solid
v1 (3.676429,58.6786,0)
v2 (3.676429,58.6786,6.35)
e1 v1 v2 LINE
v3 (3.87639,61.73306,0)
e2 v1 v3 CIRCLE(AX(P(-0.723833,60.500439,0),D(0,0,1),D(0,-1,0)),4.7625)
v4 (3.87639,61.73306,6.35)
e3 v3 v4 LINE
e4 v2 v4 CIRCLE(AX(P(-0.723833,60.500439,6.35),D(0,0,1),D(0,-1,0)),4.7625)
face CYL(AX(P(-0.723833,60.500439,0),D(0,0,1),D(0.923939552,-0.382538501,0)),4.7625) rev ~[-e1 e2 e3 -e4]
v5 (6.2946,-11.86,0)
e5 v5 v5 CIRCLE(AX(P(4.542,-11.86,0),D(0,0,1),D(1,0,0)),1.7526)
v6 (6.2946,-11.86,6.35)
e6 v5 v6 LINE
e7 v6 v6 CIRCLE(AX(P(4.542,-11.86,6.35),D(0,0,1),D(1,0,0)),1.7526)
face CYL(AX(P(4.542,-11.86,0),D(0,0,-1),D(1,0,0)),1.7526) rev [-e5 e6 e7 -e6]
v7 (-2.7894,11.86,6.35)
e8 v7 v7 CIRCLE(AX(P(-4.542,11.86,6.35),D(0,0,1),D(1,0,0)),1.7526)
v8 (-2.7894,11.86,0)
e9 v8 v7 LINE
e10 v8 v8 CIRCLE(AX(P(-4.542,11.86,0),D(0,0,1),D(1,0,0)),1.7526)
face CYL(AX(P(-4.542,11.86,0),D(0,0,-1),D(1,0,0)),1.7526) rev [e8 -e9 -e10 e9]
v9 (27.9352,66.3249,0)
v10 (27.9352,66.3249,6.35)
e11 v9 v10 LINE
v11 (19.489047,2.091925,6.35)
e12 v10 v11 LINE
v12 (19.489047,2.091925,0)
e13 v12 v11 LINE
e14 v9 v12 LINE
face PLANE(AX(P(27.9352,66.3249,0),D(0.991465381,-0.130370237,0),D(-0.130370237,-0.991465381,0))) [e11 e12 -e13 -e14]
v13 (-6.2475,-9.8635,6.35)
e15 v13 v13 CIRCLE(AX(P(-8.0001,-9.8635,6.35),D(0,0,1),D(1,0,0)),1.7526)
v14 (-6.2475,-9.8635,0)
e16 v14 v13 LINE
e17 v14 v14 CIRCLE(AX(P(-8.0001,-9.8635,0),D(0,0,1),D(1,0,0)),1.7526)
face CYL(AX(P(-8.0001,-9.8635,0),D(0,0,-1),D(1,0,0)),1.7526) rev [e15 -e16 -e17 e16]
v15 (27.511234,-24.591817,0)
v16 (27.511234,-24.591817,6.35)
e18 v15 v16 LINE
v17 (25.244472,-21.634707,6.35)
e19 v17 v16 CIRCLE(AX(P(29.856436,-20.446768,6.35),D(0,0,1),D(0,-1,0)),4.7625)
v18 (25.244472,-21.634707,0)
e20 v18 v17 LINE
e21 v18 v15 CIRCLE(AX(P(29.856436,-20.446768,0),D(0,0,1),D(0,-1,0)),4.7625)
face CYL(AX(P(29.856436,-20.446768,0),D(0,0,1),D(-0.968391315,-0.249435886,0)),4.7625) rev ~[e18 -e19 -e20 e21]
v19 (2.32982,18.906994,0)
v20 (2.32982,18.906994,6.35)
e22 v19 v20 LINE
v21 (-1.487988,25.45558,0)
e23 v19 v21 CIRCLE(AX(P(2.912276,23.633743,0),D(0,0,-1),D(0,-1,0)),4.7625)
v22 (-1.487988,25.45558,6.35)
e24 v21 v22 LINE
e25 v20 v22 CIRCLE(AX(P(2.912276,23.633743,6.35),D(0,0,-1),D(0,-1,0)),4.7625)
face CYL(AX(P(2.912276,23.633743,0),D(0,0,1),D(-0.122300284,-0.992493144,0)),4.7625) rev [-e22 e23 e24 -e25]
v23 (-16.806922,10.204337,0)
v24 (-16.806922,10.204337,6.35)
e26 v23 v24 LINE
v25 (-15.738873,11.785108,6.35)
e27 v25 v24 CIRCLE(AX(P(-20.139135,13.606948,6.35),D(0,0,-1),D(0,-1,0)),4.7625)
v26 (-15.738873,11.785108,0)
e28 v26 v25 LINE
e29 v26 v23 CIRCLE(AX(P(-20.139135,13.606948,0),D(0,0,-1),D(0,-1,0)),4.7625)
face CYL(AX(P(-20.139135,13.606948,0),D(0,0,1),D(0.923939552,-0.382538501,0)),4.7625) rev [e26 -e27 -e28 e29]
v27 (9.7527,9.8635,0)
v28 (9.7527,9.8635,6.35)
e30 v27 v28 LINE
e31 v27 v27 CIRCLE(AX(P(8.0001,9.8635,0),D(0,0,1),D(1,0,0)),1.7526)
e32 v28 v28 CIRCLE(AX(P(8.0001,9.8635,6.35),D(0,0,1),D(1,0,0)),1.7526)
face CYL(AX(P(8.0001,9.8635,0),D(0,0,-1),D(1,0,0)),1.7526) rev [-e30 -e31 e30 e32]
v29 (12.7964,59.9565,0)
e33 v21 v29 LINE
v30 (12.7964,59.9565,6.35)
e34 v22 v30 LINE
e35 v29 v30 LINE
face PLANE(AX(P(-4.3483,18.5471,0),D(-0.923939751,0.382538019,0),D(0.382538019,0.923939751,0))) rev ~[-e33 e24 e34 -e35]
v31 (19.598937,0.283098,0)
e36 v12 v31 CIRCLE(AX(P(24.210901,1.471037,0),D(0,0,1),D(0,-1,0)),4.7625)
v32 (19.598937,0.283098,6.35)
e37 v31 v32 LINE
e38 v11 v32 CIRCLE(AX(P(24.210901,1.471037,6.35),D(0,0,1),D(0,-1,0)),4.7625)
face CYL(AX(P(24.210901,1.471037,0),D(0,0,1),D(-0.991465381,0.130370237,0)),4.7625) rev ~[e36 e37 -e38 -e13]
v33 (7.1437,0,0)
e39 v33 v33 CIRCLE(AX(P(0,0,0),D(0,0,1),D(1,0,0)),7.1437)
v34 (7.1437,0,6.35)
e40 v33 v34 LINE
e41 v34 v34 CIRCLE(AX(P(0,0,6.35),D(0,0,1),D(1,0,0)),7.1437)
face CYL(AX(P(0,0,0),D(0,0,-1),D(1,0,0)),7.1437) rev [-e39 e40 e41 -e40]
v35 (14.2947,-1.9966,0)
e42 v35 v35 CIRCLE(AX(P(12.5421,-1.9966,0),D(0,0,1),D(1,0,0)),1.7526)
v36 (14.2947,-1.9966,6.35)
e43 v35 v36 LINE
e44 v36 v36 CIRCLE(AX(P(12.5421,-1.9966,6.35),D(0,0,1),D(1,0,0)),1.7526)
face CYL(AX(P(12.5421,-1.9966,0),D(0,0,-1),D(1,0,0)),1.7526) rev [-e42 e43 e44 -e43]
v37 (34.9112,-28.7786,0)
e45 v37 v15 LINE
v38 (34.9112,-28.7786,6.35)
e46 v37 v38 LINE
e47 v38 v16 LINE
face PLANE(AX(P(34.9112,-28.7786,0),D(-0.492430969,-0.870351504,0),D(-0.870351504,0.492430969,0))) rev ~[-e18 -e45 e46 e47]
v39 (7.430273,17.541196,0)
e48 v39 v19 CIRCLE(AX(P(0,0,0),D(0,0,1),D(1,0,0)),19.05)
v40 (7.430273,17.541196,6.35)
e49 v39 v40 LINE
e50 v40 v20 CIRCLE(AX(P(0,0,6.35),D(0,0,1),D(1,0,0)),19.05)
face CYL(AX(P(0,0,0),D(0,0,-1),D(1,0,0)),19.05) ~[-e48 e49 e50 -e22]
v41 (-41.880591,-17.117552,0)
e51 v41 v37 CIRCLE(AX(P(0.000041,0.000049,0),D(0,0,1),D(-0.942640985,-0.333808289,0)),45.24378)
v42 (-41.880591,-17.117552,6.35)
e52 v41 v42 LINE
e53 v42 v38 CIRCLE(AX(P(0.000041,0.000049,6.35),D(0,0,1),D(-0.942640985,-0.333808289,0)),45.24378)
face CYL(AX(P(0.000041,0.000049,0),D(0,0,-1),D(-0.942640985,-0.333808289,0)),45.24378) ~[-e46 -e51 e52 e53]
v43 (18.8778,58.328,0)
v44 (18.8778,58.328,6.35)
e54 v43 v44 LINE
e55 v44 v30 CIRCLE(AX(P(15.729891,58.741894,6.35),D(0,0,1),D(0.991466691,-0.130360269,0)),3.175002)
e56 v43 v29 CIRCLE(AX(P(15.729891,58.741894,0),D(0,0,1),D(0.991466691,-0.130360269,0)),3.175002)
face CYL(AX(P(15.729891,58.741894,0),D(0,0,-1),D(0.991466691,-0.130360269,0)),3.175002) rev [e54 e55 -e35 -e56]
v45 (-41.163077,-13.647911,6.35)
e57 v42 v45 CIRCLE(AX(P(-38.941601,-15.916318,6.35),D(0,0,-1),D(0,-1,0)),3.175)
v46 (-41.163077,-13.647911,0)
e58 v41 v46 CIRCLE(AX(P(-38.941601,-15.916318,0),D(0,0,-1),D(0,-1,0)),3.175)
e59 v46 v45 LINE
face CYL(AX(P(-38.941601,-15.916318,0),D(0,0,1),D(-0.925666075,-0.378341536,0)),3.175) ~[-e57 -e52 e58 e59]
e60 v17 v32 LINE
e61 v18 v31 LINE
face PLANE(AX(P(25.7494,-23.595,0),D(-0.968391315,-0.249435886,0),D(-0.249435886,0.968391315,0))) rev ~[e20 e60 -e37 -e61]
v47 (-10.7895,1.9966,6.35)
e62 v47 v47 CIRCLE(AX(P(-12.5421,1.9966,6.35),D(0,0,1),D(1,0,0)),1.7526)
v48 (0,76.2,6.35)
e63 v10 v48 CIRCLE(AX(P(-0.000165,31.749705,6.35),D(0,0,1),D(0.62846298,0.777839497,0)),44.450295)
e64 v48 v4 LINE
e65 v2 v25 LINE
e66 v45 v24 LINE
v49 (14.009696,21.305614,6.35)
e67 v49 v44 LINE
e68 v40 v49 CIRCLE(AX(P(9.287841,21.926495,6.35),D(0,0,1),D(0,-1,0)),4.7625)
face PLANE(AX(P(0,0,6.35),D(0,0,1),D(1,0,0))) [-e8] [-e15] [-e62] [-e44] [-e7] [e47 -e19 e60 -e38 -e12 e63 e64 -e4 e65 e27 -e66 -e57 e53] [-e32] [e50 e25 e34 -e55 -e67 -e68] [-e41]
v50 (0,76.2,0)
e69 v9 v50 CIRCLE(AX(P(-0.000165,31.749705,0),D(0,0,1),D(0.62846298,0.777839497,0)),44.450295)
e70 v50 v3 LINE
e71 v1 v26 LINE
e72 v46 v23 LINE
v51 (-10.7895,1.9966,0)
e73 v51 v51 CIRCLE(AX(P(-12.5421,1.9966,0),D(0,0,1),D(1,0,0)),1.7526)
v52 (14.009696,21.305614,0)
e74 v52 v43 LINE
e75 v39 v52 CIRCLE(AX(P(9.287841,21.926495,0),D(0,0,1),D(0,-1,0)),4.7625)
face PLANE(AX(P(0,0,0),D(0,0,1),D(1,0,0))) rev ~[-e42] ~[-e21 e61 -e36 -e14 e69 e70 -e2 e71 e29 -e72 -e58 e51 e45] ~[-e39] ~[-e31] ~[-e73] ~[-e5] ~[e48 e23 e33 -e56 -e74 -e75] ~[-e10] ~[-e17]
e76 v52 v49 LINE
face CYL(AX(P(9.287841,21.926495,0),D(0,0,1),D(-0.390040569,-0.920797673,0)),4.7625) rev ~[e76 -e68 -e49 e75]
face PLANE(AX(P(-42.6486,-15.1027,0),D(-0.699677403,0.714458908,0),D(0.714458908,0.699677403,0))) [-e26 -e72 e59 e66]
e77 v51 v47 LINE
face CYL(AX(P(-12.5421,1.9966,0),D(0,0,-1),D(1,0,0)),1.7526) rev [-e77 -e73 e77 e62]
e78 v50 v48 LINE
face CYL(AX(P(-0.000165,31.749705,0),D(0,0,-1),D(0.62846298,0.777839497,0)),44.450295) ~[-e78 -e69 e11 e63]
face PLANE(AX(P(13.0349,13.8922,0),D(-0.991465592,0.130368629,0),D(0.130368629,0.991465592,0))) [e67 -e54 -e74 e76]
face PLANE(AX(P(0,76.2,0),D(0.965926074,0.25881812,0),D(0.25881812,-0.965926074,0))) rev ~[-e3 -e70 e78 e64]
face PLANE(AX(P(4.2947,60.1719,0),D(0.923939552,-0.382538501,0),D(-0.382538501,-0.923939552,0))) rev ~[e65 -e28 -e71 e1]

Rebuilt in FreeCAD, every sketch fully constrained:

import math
import FreeCAD as App
import Part
import Sketcher
from FreeCAD import Vector
Q = App.Units.Quantity


def edges_at(feature, points):
    """Names of the edges that pass closest to the given points."""
    edges = feature.Shape.Edges
    near = lambda p: min(range(len(edges)), key=lambda i: edges[i].distToShape(Part.Vertex(*p))[0])
    return sorted({f"Edge{near(p) + 1}" for p in points})

doc = App.newDocument("Part")
body = doc.addObject("PartDesign::Body", "Body")

sketch1 = body.newObject("Sketcher::SketchObject", "Sketch")
sketch1.AttachmentSupport = (doc.getObject("XY_Plane"), [""])
sketch1.MapMode = "FlatFace"
sketch1.addGeometry([
    Part.LineSegment(Vector(25.7, -23.6, 0), Vector(19.4, 1.2, 0)),
    Part.LineSegment(Vector(19.4, 1.2, 0), Vector(27.9, 66.3, 0)),
    Part.ArcOfCircle(Part.Circle(Vector(0, 31.8, 0), Vector(0, 0, 1), 44.4), math.radians(51), math.radians(90)),
    Part.LineSegment(Vector(0, 76.2, 0), Vector(4.3, 60.2, 0)),
    Part.LineSegment(Vector(4.3, 60.2, 0), Vector(-16.1, 10.9, 0)),
    Part.LineSegment(Vector(-16.1, 10.9, 0), Vector(-42.6, -15.1, 0)),
    Part.ArcOfCircle(Part.Circle(Vector(0, 0, 0), Vector(0, 0, 1), 45.2), math.radians(-160), math.radians(-40)),
    Part.LineSegment(Vector(34.9, -28.8, 0), Vector(25.7, -23.6, 0)),
    Part.ArcOfCircle(Part.Circle(Vector(0, 0, 0), Vector(0, 0, 1), 19.1), math.radians(47), math.radians(103)),
    Part.LineSegment(Vector(-4.3, 18.5, 0), Vector(12.8, 60, 0)),
    Part.ArcOfCircle(Part.Circle(Vector(15.7, 58.7, 0), Vector(0, 0, 1), 3.2), math.radians(-7), math.radians(158)),
    Part.LineSegment(Vector(18.9, 58.3, 0), Vector(13, 13.9, 0)),
    Part.Circle(Vector(-8, -9.9, 0), Vector(0, 0, 1), 1.8),
    Part.Circle(Vector(-12.5, 2, 0), Vector(0, 0, 1), 1.8),
    Part.Circle(Vector(-4.5, 11.9, 0), Vector(0, 0, 1), 1.8),
    Part.Circle(Vector(4.5, -11.9, 0), Vector(0, 0, 1), 1.8),
    Part.Circle(Vector(0, 0, 0), Vector(0, 0, 1), 7.1),
    Part.Circle(Vector(12.5, -2, 0), Vector(0, 0, 1), 1.8),
    Part.Circle(Vector(8, 9.9, 0), Vector(0, 0, 1), 1.8),
], False)
sketch1.addConstraint([
    Sketcher.Constraint("Coincident", 0, 2, 1, 1),
    Sketcher.Constraint("Coincident", 1, 2, 2, 1),
    Sketcher.Constraint("Coincident", 2, 2, 3, 1),
    Sketcher.Constraint("Coincident", 3, 2, 4, 1),
    Sketcher.Constraint("Coincident", 4, 2, 5, 1),
    Sketcher.Constraint("Coincident", 5, 2, 6, 1),
    Sketcher.Constraint("Coincident", 6, 2, 7, 1),
    Sketcher.Constraint("Coincident", 7, 2, 0, 1),
    Sketcher.Constraint("Coincident", 8, 2, 9, 1),
    Sketcher.Constraint("Tangent", 9, 2, 10, 2),
    Sketcher.Constraint("Tangent", 10, 1, 11, 1),
    Sketcher.Constraint("Coincident", 11, 2, 8, 1),
    Sketcher.Constraint("Coincident", 6, 3, -1, 1),
    Sketcher.Constraint("Coincident", 8, 3, -1, 1),
    Sketcher.Constraint("Coincident", 16, 3, -1, 1),
    Sketcher.Constraint("Equal", 12, 13),
    Sketcher.Constraint("Equal", 13, 14),
    Sketcher.Constraint("Equal", 14, 15),
    Sketcher.Constraint("Equal", 15, 17),
    Sketcher.Constraint("Equal", 17, 18),
    Sketcher.Constraint("Symmetric", 14, 3, 15, 3, -1, 1),
    Sketcher.Constraint("Symmetric", 13, 3, 17, 3, -1, 1),
    Sketcher.Constraint("Symmetric", 12, 3, 18, 3, -1, 1),
    Sketcher.Constraint("PointOnObject", 2, 3, -2),
    Sketcher.Constraint("PointOnObject", 2, 2, -2),
    Sketcher.Constraint("Parallel", 4, 9),
    Sketcher.Constraint("Parallel", 1, 11),
    Sketcher.Constraint("Equal", 9, 11),
    Sketcher.Constraint("Radius", 2, Q("1.75 in")),
    Sketcher.Constraint("Radius", 8, Q("0.75 in")),
    Sketcher.Constraint("Diameter", 12, Q("0.138 in")),
    Sketcher.Constraint("Diameter", 16, Q("0.5625 in")),
    Sketcher.Constraint("Radius", 6, Q("1.781248 in")),
    Sketcher.Constraint("Radius", 10, Q("0.125 in")),
    Sketcher.Constraint("DistanceY", -1, 1, 2, 2, Q("3 in")),
    Sketcher.Constraint("Angle", 3, Q("-75 deg")),
    Sketcher.Constraint("Angle", 5, Q("-135.5989 deg")),
    Sketcher.Constraint("Angle", 7, Q("150.4995 deg")),
    Sketcher.Constraint("Angle", 1, Q("82.509 deg")),
    Sketcher.Constraint("Angle", 4, Q("-112.491 deg")),
    Sketcher.Constraint("DistanceY", 14, 3, 11, 2, Q("0.08 in")),
    Sketcher.Constraint("DistanceY", 12, 3, 10, 3, Q("2.701 in")),
    Sketcher.Constraint("DistanceY", 0, 2, 18, 3, Q("0.342 in")),
    Sketcher.Constraint("DistanceY", 7, 2, 15, 3, Q("0.462 in")),
    Sketcher.Constraint("DistanceX", 14, 3, 11, 2, Q("0.692 in")),
    Sketcher.Constraint("Distance", 0, Q("1.0071 in")),
    Sketcher.Constraint("Distance", 9, Q("1.7645 in")),
    Sketcher.Constraint("DistanceY", -1, 1, 13, 3, Q("0.0786 in")),
    Sketcher.Constraint("DistanceX", -1, 1, 1, 2, Q("1.0998 in")),
    Sketcher.Constraint("DistanceX", 4, 2, -1, 1, Q("0.6343 in")),
    Sketcher.Constraint("DistanceY", 5, 2, -1, 1, Q("0.5946 in")),
    Sketcher.Constraint("DistanceX", 13, 3, 15, 3, Q("0.6726 in")),
    Sketcher.Constraint("DistanceX", 12, 3, -1, 1, Q("8 mm")),
])
pad1 = body.newObject("PartDesign::Pad", "Pad")
pad1.Profile = sketch1
pad1.Length = Q("0.25 in")
doc.recompute()

fillet = body.newObject("PartDesign::Fillet", "Fillet")
fillet.Base = (pad1, edges_at(pad1, [
    (19.369, 1.177, 3.175),
    (25.749, -23.595, 3.175),
    (4.295, 60.172, 3.175),
    (-4.348, 18.547, 3.175),
    (13.035, 13.892, 3.175),
    (-16.111, 10.886, 3.175),
]))
fillet.Radius = Q("0.1875 in")
doc.recompute()

fillet2 = body.newObject("PartDesign::Fillet", "Fillet001")
fillet2.Base = (fillet, edges_at(fillet, [(-42.649, -15.103, 3.175)]))
fillet2.Radius = Q("0.125 in")

doc.recompute()
